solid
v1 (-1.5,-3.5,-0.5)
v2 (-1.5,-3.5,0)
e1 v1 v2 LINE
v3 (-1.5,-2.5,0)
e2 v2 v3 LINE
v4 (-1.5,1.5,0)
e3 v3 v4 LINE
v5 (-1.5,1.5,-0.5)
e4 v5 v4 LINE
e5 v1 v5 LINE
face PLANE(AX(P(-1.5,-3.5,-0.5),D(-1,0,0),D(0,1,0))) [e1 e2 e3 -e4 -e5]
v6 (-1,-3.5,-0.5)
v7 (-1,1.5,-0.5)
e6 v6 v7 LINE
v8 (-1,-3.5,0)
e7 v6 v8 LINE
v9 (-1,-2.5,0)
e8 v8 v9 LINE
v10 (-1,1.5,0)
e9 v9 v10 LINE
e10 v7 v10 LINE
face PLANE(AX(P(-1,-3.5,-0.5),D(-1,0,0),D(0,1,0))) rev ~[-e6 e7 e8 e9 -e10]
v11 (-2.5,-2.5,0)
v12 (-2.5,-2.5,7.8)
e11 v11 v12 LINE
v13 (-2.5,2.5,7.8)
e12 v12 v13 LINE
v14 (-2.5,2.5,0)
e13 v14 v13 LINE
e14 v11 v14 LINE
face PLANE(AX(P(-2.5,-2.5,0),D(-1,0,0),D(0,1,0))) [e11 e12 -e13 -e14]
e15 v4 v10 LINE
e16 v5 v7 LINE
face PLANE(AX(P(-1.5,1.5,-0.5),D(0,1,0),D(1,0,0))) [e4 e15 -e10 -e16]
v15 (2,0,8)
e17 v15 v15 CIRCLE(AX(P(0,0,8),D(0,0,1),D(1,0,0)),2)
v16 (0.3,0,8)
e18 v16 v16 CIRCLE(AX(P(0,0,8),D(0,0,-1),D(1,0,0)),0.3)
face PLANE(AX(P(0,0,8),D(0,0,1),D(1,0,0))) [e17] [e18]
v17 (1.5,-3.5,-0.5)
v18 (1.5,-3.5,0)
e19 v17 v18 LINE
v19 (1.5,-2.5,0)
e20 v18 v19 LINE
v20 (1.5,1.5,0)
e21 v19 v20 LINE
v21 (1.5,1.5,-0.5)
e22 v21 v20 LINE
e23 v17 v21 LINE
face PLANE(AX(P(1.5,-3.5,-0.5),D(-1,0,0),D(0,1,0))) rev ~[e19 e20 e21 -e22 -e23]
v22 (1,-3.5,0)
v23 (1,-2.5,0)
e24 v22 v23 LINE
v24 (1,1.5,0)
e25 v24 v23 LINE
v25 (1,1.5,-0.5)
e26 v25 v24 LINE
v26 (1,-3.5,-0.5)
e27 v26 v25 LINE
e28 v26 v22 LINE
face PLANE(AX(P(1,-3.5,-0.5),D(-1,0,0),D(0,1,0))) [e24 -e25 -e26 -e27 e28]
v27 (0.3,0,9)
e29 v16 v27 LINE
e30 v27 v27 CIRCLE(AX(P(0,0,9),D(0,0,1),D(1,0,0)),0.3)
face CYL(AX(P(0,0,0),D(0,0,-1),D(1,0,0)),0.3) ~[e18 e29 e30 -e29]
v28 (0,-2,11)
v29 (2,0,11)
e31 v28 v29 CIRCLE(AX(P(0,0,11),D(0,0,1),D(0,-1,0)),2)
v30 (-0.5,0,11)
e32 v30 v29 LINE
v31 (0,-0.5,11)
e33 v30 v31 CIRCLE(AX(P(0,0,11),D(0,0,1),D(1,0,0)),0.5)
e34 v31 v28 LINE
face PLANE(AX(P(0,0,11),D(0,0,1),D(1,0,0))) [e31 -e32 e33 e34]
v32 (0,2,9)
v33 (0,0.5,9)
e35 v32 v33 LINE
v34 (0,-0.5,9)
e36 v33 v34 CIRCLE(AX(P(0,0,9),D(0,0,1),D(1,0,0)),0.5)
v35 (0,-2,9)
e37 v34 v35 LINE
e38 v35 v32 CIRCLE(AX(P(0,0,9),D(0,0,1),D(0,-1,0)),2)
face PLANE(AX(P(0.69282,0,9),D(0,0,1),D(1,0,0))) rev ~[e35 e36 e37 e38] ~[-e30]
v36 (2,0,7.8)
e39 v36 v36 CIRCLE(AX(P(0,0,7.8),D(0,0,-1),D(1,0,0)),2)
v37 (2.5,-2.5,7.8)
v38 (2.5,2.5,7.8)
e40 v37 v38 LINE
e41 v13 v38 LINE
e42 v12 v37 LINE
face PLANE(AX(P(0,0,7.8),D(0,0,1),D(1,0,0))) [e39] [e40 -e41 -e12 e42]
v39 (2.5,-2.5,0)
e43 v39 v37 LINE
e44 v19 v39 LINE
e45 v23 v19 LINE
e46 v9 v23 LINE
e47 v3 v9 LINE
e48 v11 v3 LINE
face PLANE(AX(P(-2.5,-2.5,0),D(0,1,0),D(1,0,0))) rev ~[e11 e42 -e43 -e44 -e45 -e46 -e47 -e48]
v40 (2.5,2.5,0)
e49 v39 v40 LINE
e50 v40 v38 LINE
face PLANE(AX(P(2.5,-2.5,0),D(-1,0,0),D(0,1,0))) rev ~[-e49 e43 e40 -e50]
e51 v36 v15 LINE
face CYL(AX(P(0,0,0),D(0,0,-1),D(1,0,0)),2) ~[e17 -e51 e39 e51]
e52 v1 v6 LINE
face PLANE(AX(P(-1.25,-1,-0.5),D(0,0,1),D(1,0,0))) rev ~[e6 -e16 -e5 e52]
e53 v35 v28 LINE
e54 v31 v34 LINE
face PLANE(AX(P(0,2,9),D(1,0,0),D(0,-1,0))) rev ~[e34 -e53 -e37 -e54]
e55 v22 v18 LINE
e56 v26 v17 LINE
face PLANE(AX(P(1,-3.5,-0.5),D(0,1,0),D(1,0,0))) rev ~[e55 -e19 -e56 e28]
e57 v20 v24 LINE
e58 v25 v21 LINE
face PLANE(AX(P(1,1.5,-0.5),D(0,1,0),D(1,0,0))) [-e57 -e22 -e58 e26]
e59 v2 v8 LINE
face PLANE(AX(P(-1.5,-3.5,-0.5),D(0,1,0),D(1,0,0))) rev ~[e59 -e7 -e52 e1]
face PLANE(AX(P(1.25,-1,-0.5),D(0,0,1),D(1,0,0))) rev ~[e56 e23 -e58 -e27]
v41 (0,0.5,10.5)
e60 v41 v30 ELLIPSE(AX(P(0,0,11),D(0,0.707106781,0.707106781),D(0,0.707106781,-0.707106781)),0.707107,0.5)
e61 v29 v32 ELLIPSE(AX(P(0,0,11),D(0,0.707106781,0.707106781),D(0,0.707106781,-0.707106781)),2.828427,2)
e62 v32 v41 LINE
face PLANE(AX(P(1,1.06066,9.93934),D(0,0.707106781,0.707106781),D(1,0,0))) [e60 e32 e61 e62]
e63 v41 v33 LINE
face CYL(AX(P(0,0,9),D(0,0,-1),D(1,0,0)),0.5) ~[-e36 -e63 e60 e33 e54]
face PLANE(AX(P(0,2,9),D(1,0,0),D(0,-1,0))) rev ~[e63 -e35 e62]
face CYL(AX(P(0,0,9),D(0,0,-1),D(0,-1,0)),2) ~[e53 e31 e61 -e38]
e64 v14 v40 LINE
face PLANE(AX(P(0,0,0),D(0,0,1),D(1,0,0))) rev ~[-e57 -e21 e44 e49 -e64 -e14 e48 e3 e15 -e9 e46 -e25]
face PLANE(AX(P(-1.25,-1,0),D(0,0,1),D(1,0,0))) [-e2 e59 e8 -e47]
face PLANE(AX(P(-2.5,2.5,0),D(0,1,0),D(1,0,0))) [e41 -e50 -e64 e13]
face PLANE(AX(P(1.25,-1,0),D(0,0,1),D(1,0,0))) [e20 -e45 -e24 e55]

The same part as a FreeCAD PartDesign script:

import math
import FreeCAD as App
import Part
import Sketcher

V = App.Vector
Q = App.Units.Quantity

doc = App.newDocument("Part")
params = doc.addObject("Spreadsheet::Sheet", "Params")
for row, (alias, value) in enumerate([
    ("sketch1_height", "5 mm"),
    ("sketch1_width", "0.5 mm"),
    ("pad1_length", "0.5 mm"),
    ("sketch2_width", "5 mm"),
    ("pad2_length", "7.8 mm"),
    ("sketch3_height", "5 mm"),
    ("sketch3_width", "0.5 mm"),
    ("pad3_length", "0.5 mm"),
    ("sketch4_width", "4 mm"),
    ("sketch4_height", "3 mm"),
    ("pad4_length", "2 mm"),
    ("sketch5_diameter", "0.6 mm"),
    ("pad5_length", "11 mm"),
    ("sketch6_diameter", "4 mm"),
    ("pad6_length", "8 mm"),
    ("sketch7_diameter", "1 mm"),
    ("pad7_length", "2 mm"),
    ("sketch8_radius", "2 mm"),
    ("pad8_length", "2 mm"),
], start=1):
    params.set(f"A{row}", alias)
    params.set(f"B{row}", "=" + value)
    params.setAlias(f"B{row}", alias)

body = doc.addObject("PartDesign::Body", "Body")

sketch1 = doc.addObject("Sketcher::SketchObject", "Sketch")
body.addObject(sketch1)
sketch1.AttachmentSupport = (doc.XY_Plane, [""])
sketch1.MapMode = "FlatFace"
sketch1.AttachmentOffset = App.Placement(V(0, 0, -0.5), App.Rotation())
sketch1.addGeometry([
    Part.LineSegment(V(1, 1.5, 0), V(1, -3.5, 0)),
    Part.LineSegment(V(1, -3.5, 0), V(1.5, -3.5, 0)),
    Part.LineSegment(V(1.5, -3.5, 0), V(1.5, 1.5, 0)),
    Part.LineSegment(V(1.5, 1.5, 0), V(1, 1.5, 0)),
], False)
sketch1.addConstraint([
    Sketcher.Constraint("Coincident", 0, 2, 1, 1),
    Sketcher.Constraint("Coincident", 1, 2, 2, 1),
    Sketcher.Constraint("Coincident", 2, 2, 3, 1),
    Sketcher.Constraint("Coincident", 3, 2, 0, 1),
    Sketcher.Constraint("Vertical", 0),
    Sketcher.Constraint("Horizontal", 1),
    Sketcher.Constraint("Vertical", 2),
    Sketcher.Constraint("Horizontal", 3),
    Sketcher.Constraint("DistanceY", 0, 2, 0, 1, Q("5 mm")),
    Sketcher.Constraint("DistanceX", 1, 1, 1, 2, Q("0.5 mm")),
    Sketcher.Constraint("DistanceX", -1, 1, 0, 2, Q("1 mm")),
    Sketcher.Constraint("DistanceY", 0, 2, -1, 1, Q("3.5 mm")),
])
sketch1.setExpression("Constraints[8]", "Params.sketch1_height")
sketch1.setExpression("Constraints[9]", "Params.sketch1_width")
pad1 = doc.addObject("PartDesign::Pad", "Pad")
body.addObject(pad1)
pad1.Profile = sketch1
pad1.setExpression("Length", "Params.pad1_length")
body2 = doc.addObject("PartDesign::Body", "Body001")

sketch2 = doc.addObject("Sketcher::SketchObject", "Sketch001")
body2.addObject(sketch2)
sketch2.AttachmentSupport = (doc.getObject("XY_Plane001"), [""])
sketch2.MapMode = "FlatFace"
sketch2.addGeometry([
    Part.LineSegment(V(-2, 2, 0), V(-2, -2, 0)),
    Part.LineSegment(V(-2, -2, 0), V(2, -2, 0)),
    Part.LineSegment(V(2, -2, 0), V(2, 2, 0)),
    Part.LineSegment(V(2, 2, 0), V(-2, 2, 0)),
], False)
sketch2.addConstraint([
    Sketcher.Constraint("Coincident", 0, 2, 1, 1),
    Sketcher.Constraint("Coincident", 1, 2, 2, 1),
    Sketcher.Constraint("Coincident", 2, 2, 3, 1),
    Sketcher.Constraint("Coincident", 3, 2, 0, 1),
    Sketcher.Constraint("Vertical", 0),
    Sketcher.Constraint("Horizontal", 1),
    Sketcher.Constraint("Vertical", 2),
    Sketcher.Constraint("Horizontal", 3),
    Sketcher.Constraint("Symmetric", 0, 2, 2, 2, -1, 1),
    Sketcher.Constraint("Equal", 3, 0),
    Sketcher.Constraint("DistanceX", 1, 1, 1, 2, Q("5 mm")),
])
sketch2.setExpression("Constraints[10]", "Params.sketch2_width")
pad2 = doc.addObject("PartDesign::Pad", "Pad001")
body2.addObject(pad2)
pad2.Profile = sketch2
pad2.setExpression("Length", "Params.pad2_length")
body3 = doc.addObject("PartDesign::Body", "Body002")

sketch3 = doc.addObject("Sketcher::SketchObject", "Sketch002")
body3.addObject(sketch3)
sketch3.AttachmentSupport = (doc.getObject("XY_Plane002"), [""])
sketch3.MapMode = "FlatFace"
sketch3.AttachmentOffset = App.Placement(V(0, 0, -0.5), App.Rotation())
sketch3.addGeometry([
    Part.LineSegment(V(-1.5, 1.5, 0), V(-1.5, -3.5, 0)),
    Part.LineSegment(V(-1.5, -3.5, 0), V(-1, -3.5, 0)),
    Part.LineSegment(V(-1, -3.5, 0), V(-1, 1.5, 0)),
    Part.LineSegment(V(-1, 1.5, 0), V(-1.5, 1.5, 0)),
], False)
sketch3.addConstraint([
    Sketcher.Constraint("Coincident", 0, 2, 1, 1),
    Sketcher.Constraint("Coincident", 1, 2, 2, 1),
    Sketcher.Constraint("Coincident", 2, 2, 3, 1),
    Sketcher.Constraint("Coincident", 3, 2, 0, 1),
    Sketcher.Constraint("Vertical", 0),
    Sketcher.Constraint("Horizontal", 1),
    Sketcher.Constraint("Vertical", 2),
    Sketcher.Constraint("Horizontal", 3),
    Sketcher.Constraint("DistanceY", 0, 2, 0, 1, Q("5 mm")),
    Sketcher.Constraint("DistanceX", 1, 1, 1, 2, Q("0.5 mm")),
    Sketcher.Constraint("DistanceX", 1, 2, -1, 1, Q("1 mm")),
    Sketcher.Constraint("DistanceY", 0, 2, -1, 1, Q("3.5 mm")),
])
sketch3.setExpression("Constraints[8]", "Params.sketch3_height")
sketch3.setExpression("Constraints[9]", "Params.sketch3_width")
pad3 = doc.addObject("PartDesign::Pad", "Pad002")
body3.addObject(pad3)
pad3.Profile = sketch3
pad3.setExpression("Length", "Params.pad3_length")
body4 = doc.addObject("PartDesign::Body", "Body003")

sketch4 = doc.addObject("Sketcher::SketchObject", "Sketch003")
body4.addObject(sketch4)
sketch4.AttachmentSupport = (doc.getObject("XY_Plane003"), [""])
sketch4.MapMode = "FlatFace"
sketch4.addGeometry([
    Part.LineSegment(V(0, 3, 0), V(0, 0, 0)),
    Part.LineSegment(V(0, 0, 0), V(4, 0, 0)),
    Part.LineSegment(V(4, 0, 0), V(4, 3, 0)),
    Part.LineSegment(V(4, 3, 0), V(0, 3, 0)),
], False)
sketch4.addConstraint([
    Sketcher.Constraint("Coincident", 0, 2, 1, 1),
    Sketcher.Constraint("Coincident", 1, 2, 2, 1),
    Sketcher.Constraint("Coincident", 2, 2, 3, 1),
    Sketcher.Constraint("Coincident", 3, 2, 0, 1),
    Sketcher.Constraint("Vertical", 0),
    Sketcher.Constraint("Horizontal", 1),
    Sketcher.Constraint("Vertical", 2),
    Sketcher.Constraint("Horizontal", 3),
    Sketcher.Constraint("Coincident", 0, 2, -1, 1),
    Sketcher.Constraint("DistanceX", 1, 1, 1, 2, Q("4 mm")),
    Sketcher.Constraint("DistanceY", 0, 2, 0, 1, Q("3 mm")),
])
sketch4.setExpression("Constraints[9]", "Params.sketch4_width")
sketch4.setExpression("Constraints[10]", "Params.sketch4_height")
pad4 = doc.addObject("PartDesign::Pad", "Pad003")
body4.addObject(pad4)
pad4.Profile = sketch4
pad4.setExpression("Length", "Params.pad4_length")
body5 = doc.addObject("PartDesign::Body", "Body004")
doc.recompute()

body4.Placement = App.Placement(V(0, 0, 0), App.Rotation(V(1, 0, 0), 315))
boolean = doc.addObject("PartDesign::Boolean", "Boolean")
body5.addObject(boolean)
boolean.Type = "Fuse"
boolean.addObjects([body4])
body6 = doc.addObject("PartDesign::Body", "Body005")
doc.recompute()

body5.Placement = App.Placement(V(-1, 0, 11), App.Rotation(V(0, 0, 1), 0))
boolean2 = doc.addObject("PartDesign::Boolean", "Boolean001")
body6.addObject(boolean2)
boolean2.Type = "Fuse"
boolean2.addObjects([body5])
body7 = doc.addObject("PartDesign::Body", "Body006")

sketch5 = doc.addObject("Sketcher::SketchObject", "Sketch004")
body7.addObject(sketch5)
sketch5.AttachmentSupport = (doc.getObject("XY_Plane006"), [""])
sketch5.MapMode = "FlatFace"
sketch5.addGeometry(Part.Circle(V(0, 0, 0), V(0, 0, 1), 0.3), False)
sketch5.addConstraint([
    Sketcher.Constraint("Coincident", 0, 3, -1, 1),
    Sketcher.Constraint("Diameter", 0, Q("0.6 mm")),
])
sketch5.setExpression("Constraints[1]", "Params.sketch5_diameter")
pad5 = doc.addObject("PartDesign::Pad", "Pad004")
body7.addObject(pad5)
pad5.Profile = sketch5
pad5.setExpression("Length", "Params.pad5_length")
body8 = doc.addObject("PartDesign::Body", "Body007")

sketch6 = doc.addObject("Sketcher::SketchObject", "Sketch005")
body8.addObject(sketch6)
sketch6.AttachmentSupport = (doc.getObject("XY_Plane007"), [""])
sketch6.MapMode = "FlatFace"
sketch6.addGeometry(Part.Circle(V(0, 0, 0), V(0, 0, 1), 2), False)
sketch6.addConstraint([
    Sketcher.Constraint("Coincident", 0, 3, -1, 1),
    Sketcher.Constraint("Diameter", 0, Q("4 mm")),
])
sketch6.setExpression("Constraints[1]", "Params.sketch6_diameter")
pad6 = doc.addObject("PartDesign::Pad", "Pad005")
body8.addObject(pad6)
pad6.Profile = sketch6
pad6.setExpression("Length", "Params.pad6_length")
body9 = doc.addObject("PartDesign::Body", "Body008")

sketch7 = doc.addObject("Sketcher::SketchObject", "Sketch006")
body9.addObject(sketch7)
sketch7.AttachmentSupport = (doc.getObject("XY_Plane008"), [""])
sketch7.MapMode = "FlatFace"
sketch7.AttachmentOffset = App.Placement(V(0, 0, 9), App.Rotation())
sketch7.addGeometry(Part.Circle(V(0, 0, 0), V(0, 0, 1), 0.5), False)
sketch7.addConstraint([
    Sketcher.Constraint("Coincident", 0, 3, -1, 1),
    Sketcher.Constraint("Diameter", 0, Q("1 mm")),
])
sketch7.setExpression("Constraints[1]", "Params.sketch7_diameter")
pad7 = doc.addObject("PartDesign::Pad", "Pad006")
body9.addObject(pad7)
pad7.Profile = sketch7
pad7.setExpression("Length", "Params.pad7_length")
body10 = doc.addObject("PartDesign::Body", "Body009")

sketch8 = doc.addObject("Sketcher::SketchObject", "Sketch007")
body10.addObject(sketch8)
sketch8.AttachmentSupport = (doc.getObject("XY_Plane009"), [""])
sketch8.MapMode = "FlatFace"
sketch8.AttachmentOffset = App.Placement(V(0, 0, 9), App.Rotation())
sketch8.addGeometry([
    Part.LineSegment(V(0, 2, 0), V(0, -2, 0)),
    Part.ArcOfCircle(Part.Circle(V(0, 0, 0), V(0, 0, 1), 2), math.radians(-90), math.radians(90)),
], False)
sketch8.addConstraint([
    Sketcher.Constraint("Coincident", 0, 1, 1, 2),
    Sketcher.Constraint("Coincident", 1, 1, 0, 2),
    Sketcher.Constraint("Vertical", 0),
    Sketcher.Constraint("Coincident", 1, 3, -1, 1),
    Sketcher.Constraint("PointOnObject", 0, 1, -2),
    Sketcher.Constraint("Radius", 1, Q("2 mm")),
])
sketch8.setExpression("Constraints[5]", "Params.sketch8_radius")
pad8 = doc.addObject("PartDesign::Pad", "Pad007")
body10.addObject(pad8)
pad8.Profile = sketch8
pad8.setExpression("Length", "Params.pad8_length")
doc.recompute()

boolean3 = doc.addObject("PartDesign::Boolean", "Boolean002")
body10.addObject(boolean3)
boolean3.Type = "Fuse"
boolean3.addObjects([body7])
doc.recompute()

boolean4 = doc.addObject("PartDesign::Boolean", "Boolean003")
body10.addObject(boolean4)
boolean4.Type = "Fuse"
boolean4.addObjects([body8])
doc.recompute()

boolean5 = doc.addObject("PartDesign::Boolean", "Boolean004")
body10.addObject(boolean5)
boolean5.Type = "Fuse"
boolean5.addObjects([body9])
doc.recompute()

boolean6 = doc.addObject("PartDesign::Boolean", "Boolean005")
body10.addObject(boolean6)
boolean6.Type = "Cut"
boolean6.addObjects([body6])
doc.recompute()

boolean7 = doc.addObject("PartDesign::Boolean", "Boolean006")
body10.addObject(boolean7)
boolean7.Type = "Fuse"
boolean7.addObjects([body])
doc.recompute()

boolean8 = doc.addObject("PartDesign::Boolean", "Boolean007")
body10.addObject(boolean8)
boolean8.Type = "Fuse"
boolean8.addObjects([body2])
doc.recompute()

boolean9 = doc.addObject("PartDesign::Boolean", "Boolean008")
body10.addObject(boolean9)
boolean9.Type = "Fuse"
boolean9.addObjects([body3])

doc.recompute()
